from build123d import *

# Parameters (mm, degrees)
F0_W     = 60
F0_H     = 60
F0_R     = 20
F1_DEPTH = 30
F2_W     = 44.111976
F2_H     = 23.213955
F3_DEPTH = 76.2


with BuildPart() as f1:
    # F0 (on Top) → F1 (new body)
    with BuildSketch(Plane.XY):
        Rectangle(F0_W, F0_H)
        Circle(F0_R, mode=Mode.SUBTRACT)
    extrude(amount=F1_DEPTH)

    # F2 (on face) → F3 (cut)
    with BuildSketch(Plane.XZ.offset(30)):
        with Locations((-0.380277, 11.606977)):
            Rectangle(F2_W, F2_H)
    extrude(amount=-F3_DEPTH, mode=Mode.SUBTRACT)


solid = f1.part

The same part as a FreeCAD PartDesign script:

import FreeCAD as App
import Part
import Sketcher
from FreeCAD import Vector
Q = App.Units.Quantity

doc = App.newDocument("Part")
params = doc.addObject("Spreadsheet::Sheet", "Params")
for row, (alias, value) in enumerate([
    ("sketch1_diameter", "40 mm"),
    ("sketch1_width", "60 mm"),
    ("pad1_length", "30 mm"),
    ("pocket1_length", "76.2 mm"),
], start=1):
    params.set(f"A{row}", alias)
    params.set(f"B{row}", "=" + value)
    params.setAlias(f"B{row}", alias)

body = doc.addObject("PartDesign::Body", "Body")

sketch1 = body.newObject("Sketcher::SketchObject", "Sketch")
sketch1.AttachmentSupport = (doc.getObject("XY_Plane"), [""])
sketch1.MapMode = "FlatFace"
sketch1.addGeometry(Part.LineSegment(Vector(-30, 30, 0), Vector(-30, -30, 0)), False)
sketch1.addGeometry(Part.LineSegment(Vector(-30, -30, 0), Vector(30, -30, 0)), False)
sketch1.addGeometry(Part.LineSegment(Vector(30, -30, 0), Vector(30, 30, 0)), False)
sketch1.addGeometry(Part.LineSegment(Vector(30, 30, 0), Vector(-30, 30, 0)), False)
sketch1.addGeometry(Part.Circle(Vector(0, 0, 0), Vector(0, 0, 1), 20), False)
sketch1.addConstraint(Sketcher.Constraint("Coincident", 0, 2, 1, 1))
sketch1.addConstraint(Sketcher.Constraint("Coincident", 1, 2, 2, 1))
sketch1.addConstraint(Sketcher.Constraint("Coincident", 2, 2, 3, 1))
sketch1.addConstraint(Sketcher.Constraint("Coincident", 3, 2, 0, 1))
sketch1.addConstraint(Sketcher.Constraint("Vertical", 0))
sketch1.addConstraint(Sketcher.Constraint("Horizontal", 1))
sketch1.addConstraint(Sketcher.Constraint("Vertical", 2))
sketch1.addConstraint(Sketcher.Constraint("Horizontal", 3))
sketch1.addConstraint(Sketcher.Constraint("Coincident", 4, 3, -1, 1))
sketch1.addConstraint(Sketcher.Constraint("Symmetric", 0, 2, 2, 2, -1, 1))
sketch1.addConstraint(Sketcher.Constraint("Equal", 3, 0))
sketch1.addConstraint(Sketcher.Constraint("Diameter", 4, Q("40 mm")))
sketch1.addConstraint(Sketcher.Constraint("DistanceX", 1, 1, 1, 2, Q("60 mm")))
sketch1.setExpression("Constraints[11]", "Params.sketch1_diameter")
sketch1.setExpression("Constraints[12]", "Params.sketch1_width")
pad1 = body.newObject("PartDesign::Pad", "Pad")
pad1.Profile = sketch1
pad1.setExpression("Length", "Params.pad1_length")

sketch2 = body.newObject("Sketcher::SketchObject", "Sketch001")
sketch2.AttachmentSupport = (doc.getObject("XZ_Plane"), [""])
sketch2.MapMode = "FlatFace"
sketch2.AttachmentOffset = App.Placement(Vector(0, 0, 30), App.Rotation())
sketch2.addGeometry(Part.LineSegment(Vector(-22, 23, 0), Vector(-22, 0, 0)), False)
sketch2.addGeometry(Part.LineSegment(Vector(-22, 0, 0), Vector(22, 0, 0)), False)
sketch2.addGeometry(Part.LineSegment(Vector(22, 0, 0), Vector(22, 23, 0)), False)
sketch2.addGeometry(Part.LineSegment(Vector(22, 23, 0), Vector(-22, 23, 0)), False)
sketch2.addConstraint(Sketcher.Constraint("Coincident", 0, 2, 1, 1))
sketch2.addConstraint(Sketcher.Constraint("Coincident", 1, 2, 2, 1))
sketch2.addConstraint(Sketcher.Constraint("Coincident", 2, 2, 3, 1))
sketch2.addConstraint(Sketcher.Constraint("Coincident", 3, 2, 0, 1))
sketch2.addConstraint(Sketcher.Constraint("Vertical", 0))
sketch2.addConstraint(Sketcher.Constraint("Horizontal", 1))
sketch2.addConstraint(Sketcher.Constraint("Vertical", 2))
sketch2.addConstraint(Sketcher.Constraint("Horizontal", 3))
sketch2.addConstraint(Sketcher.Constraint("PointOnObject", 0, 2, -1))
sketch2.addConstraint(Sketcher.Constraint("DistanceX", 1, 1, 1, 2, Q("44.111976 mm")))
sketch2.addConstraint(Sketcher.Constraint("DistanceY", 0, 2, 0, 1, Q("23.213955 mm")))
sketch2.addConstraint(Sketcher.Constraint("DistanceX", -1, 1, 1, 2, Q("21.675711 mm")))
pocket1 = body.newObject("PartDesign::Pocket", "Pocket")
pocket1.Profile = sketch2
pocket1.setExpression("Length", "Params.pocket1_length")

doc.recompute()
